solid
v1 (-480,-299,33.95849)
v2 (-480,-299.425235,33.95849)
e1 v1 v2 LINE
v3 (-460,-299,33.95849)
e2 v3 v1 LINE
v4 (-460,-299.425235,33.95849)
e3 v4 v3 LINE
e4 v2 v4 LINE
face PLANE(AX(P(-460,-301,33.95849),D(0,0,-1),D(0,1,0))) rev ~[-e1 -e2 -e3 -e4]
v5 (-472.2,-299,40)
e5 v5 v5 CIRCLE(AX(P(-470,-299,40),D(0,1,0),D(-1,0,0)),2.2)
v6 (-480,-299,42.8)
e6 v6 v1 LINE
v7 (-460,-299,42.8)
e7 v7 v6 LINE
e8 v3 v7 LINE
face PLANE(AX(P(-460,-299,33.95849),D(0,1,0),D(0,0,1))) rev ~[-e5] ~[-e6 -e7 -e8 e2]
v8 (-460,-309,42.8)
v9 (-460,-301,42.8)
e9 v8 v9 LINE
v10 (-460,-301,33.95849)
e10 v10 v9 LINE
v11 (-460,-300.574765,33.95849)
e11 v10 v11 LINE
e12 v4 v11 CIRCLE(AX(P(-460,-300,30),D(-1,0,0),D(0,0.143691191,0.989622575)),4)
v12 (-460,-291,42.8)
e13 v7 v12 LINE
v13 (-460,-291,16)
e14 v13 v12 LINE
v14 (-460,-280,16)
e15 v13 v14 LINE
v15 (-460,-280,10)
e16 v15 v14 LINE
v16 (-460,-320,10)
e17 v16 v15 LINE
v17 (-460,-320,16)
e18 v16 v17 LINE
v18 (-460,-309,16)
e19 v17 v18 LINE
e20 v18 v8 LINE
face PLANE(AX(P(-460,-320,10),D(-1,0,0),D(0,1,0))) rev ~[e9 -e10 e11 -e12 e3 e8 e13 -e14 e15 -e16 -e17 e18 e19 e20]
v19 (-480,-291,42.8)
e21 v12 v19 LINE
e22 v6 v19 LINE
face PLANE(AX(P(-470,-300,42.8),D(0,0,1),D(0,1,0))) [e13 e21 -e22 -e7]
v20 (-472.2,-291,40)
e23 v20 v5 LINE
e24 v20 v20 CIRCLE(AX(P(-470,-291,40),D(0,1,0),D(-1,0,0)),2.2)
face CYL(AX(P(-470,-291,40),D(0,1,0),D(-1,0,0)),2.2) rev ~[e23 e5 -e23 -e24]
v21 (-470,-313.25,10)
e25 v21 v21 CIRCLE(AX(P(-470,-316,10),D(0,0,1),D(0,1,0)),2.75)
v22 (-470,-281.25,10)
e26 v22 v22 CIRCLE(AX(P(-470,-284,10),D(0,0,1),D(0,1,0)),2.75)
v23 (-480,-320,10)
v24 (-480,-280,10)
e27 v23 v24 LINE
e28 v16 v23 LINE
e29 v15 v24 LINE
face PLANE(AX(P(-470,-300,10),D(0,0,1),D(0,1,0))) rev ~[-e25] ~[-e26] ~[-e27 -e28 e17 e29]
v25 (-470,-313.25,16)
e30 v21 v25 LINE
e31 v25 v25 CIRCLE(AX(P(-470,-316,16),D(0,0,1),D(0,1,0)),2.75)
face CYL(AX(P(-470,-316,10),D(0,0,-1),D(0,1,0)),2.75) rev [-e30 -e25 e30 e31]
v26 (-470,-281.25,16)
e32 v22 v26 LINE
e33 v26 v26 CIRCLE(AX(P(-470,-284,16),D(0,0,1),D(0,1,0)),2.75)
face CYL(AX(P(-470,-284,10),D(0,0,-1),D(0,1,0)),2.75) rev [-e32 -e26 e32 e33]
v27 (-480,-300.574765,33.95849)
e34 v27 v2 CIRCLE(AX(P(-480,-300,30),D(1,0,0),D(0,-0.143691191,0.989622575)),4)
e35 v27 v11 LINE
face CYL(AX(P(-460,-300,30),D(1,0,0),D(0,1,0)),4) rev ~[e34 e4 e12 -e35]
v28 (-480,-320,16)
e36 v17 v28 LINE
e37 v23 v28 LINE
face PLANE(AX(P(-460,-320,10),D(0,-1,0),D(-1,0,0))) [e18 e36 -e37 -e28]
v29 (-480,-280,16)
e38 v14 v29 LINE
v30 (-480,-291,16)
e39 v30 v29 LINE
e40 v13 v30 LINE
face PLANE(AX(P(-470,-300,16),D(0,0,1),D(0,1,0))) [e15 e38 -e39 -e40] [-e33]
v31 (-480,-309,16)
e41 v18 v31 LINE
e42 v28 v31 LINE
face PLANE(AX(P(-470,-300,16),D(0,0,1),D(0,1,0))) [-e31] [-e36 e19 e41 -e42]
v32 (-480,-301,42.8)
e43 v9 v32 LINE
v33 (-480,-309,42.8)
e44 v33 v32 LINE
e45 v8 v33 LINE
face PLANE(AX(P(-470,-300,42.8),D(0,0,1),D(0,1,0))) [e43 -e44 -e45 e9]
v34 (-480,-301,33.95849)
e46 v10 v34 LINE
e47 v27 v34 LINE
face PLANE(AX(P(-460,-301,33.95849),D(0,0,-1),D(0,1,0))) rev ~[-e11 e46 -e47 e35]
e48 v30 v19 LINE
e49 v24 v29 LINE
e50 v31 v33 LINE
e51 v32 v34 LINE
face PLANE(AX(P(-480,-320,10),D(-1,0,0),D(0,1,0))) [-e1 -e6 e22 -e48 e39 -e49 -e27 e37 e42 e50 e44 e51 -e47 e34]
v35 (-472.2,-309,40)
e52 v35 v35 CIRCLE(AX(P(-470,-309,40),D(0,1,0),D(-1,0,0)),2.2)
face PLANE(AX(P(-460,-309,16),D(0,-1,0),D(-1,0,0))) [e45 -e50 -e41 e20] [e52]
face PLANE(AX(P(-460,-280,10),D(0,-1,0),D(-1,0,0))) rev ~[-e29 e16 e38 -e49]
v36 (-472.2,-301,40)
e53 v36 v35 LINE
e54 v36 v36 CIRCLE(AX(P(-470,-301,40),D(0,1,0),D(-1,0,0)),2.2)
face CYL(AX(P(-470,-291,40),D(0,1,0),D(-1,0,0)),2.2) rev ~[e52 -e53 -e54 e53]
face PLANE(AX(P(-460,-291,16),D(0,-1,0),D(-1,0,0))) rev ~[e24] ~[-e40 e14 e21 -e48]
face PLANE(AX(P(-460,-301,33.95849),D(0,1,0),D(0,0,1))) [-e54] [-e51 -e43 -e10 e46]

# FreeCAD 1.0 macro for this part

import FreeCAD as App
import Part
import Sketcher
from FreeCAD import Vector


def add_polygon(sketch, points):
    """Adds a closed chain of lines whose ends are joined by coincident constraints."""
    first, n = sketch.GeometryCount, len(points)
    for a, b in zip(points, points[1:] + points[:1]):
        sketch.addGeometry(Part.LineSegment(App.Vector(*a, 0), App.Vector(*b, 0)), False)
    for i in range(n):
        sketch.addConstraint(Sketcher.Constraint("Coincident", first + i, 2, first + (i + 1) % n, 1))

doc = App.newDocument("Part")
body = doc.addObject("PartDesign::Body", "Body")

sketch1 = body.newObject("Sketcher::SketchObject", "Sketch")
sketch1.AttachmentSupport = (doc.getObject("XY_Plane"), [""])
sketch1.MapMode = "FlatFace"
add_polygon(sketch1, [(-20, 10), (-20, -10), (20, -10), (20, 10)])
sketch1.addGeometry(Part.Circle(Vector(-16, 0, 0), Vector(0, 0, 1), 2.8), False)
sketch1.addGeometry(Part.Circle(Vector(16, 0, 0), Vector(0, 0, 1), 2.8), False)
sketch1.addConstraint([
    Sketcher.Constraint("Vertical", 0),
    Sketcher.Constraint("Horizontal", 1),
    Sketcher.Constraint("Vertical", 2),
    Sketcher.Constraint("Horizontal", 3),
    Sketcher.Constraint("Equal", 4, 5),
    Sketcher.Constraint("Symmetric", 4, 3, 5, 3, -1, 1),
    Sketcher.Constraint("Symmetric", 0, 2, 2, 2, -1, 1),
    Sketcher.Constraint("PointOnObject", 4, 3, -1),
    Sketcher.Constraint("Diameter", 4, 5.5),
    Sketcher.Constraint("DistanceX", 1, 1, 1, 2, 40.0),
    Sketcher.Constraint("DistanceY", 0, 2, 0, 1, 20.0),
    Sketcher.Constraint("DistanceX", 4, 3, -1, 1, 16.0),
])
pad1 = body.newObject("PartDesign::Pad", "Pad")
pad1.Profile = sketch1
pad1.Length = 6

sketch2 = body.newObject("Sketcher::SketchObject", "Sketch001")
sketch2.AttachmentSupport = (doc.getObject("XY_Plane"), [""])
sketch2.MapMode = "FlatFace"
sketch2.AttachmentOffset = App.Placement(Vector(0, 0, 6), App.Rotation())
add_polygon(sketch2, [(-9, 10), (-9, -10), (9, -10), (9, 10)])
sketch2.addConstraint([
    Sketcher.Constraint("Vertical", 0),
    Sketcher.Constraint("Horizontal", 1),
    Sketcher.Constraint("Vertical", 2),
    Sketcher.Constraint("Horizontal", 3),
    Sketcher.Constraint("Symmetric", 0, 2, 2, 2, -1, 1),
    Sketcher.Constraint("DistanceX", 1, 1, 1, 2, 18.0),
    Sketcher.Constraint("DistanceY", 0, 2, 0, 1, 20.0),
])
pad2 = body.newObject("PartDesign::Pad", "Pad001")
pad2.Profile = sketch2
pad2.Length = 26.8

sketch3 = body.newObject("Sketcher::SketchObject", "Sketch002")
sketch3.AttachmentSupport = (doc.getObject("XZ_Plane"), [""])
sketch3.MapMode = "FlatFace"
sketch3.AttachmentOffset = App.Placement(Vector(0, 0, 10), App.Rotation())
sketch3.addGeometry(Part.Circle(Vector(0, 20, 0), Vector(0, 0, 1), 4), False)
sketch3.addConstraint([
    Sketcher.Constraint("PointOnObject", 0, 3, -2),
    Sketcher.Constraint("Diameter", 0, 8.0),
    Sketcher.Constraint("DistanceY", -1, 1, 0, 3, 20.0),
])
pocket1 = body.newObject("PartDesign::Pocket", "Pocket")
pocket1.Profile = sketch3
pocket1.Type = "ThroughAll"

sketch4 = body.newObject("Sketcher::SketchObject", "Sketch003")
sketch4.AttachmentSupport = (doc.getObject("XZ_Plane"), [""])
sketch4.MapMode = "FlatFace"
sketch4.AttachmentOffset = App.Placement(Vector(0, 0, 10), App.Rotation())
add_polygon(sketch4, [(-1, 32.8), (-1, 24), (1, 24), (1, 32.8)])
sketch4.addConstraint([
    Sketcher.Constraint("Vertical", 0),
    Sketcher.Constraint("Horizontal", 1),
    Sketcher.Constraint("Vertical", 2),
    Sketcher.Constraint("Horizontal", 3),
    Sketcher.Constraint("DistanceX", 1, 1, 1, 2, 2.0),
    Sketcher.Constraint("DistanceX", 0, 2, -1, 1, 1.0),
    Sketcher.Constraint("DistanceY", -1, 1, 2, 2, 32.8),
    Sketcher.Constraint("DistanceY", 0, 2, 0, 1, 8.84151),
])
pocket2 = body.newObject("PartDesign::Pocket", "Pocket001")
pocket2.Profile = sketch4
pocket2.Type = "ThroughAll"

sketch5 = body.newObject("Sketcher::SketchObject", "Sketch004")
sketch5.AttachmentSupport = (doc.getObject("YZ_Plane"), [""])
sketch5.MapMode = "FlatFace"
sketch5.AttachmentOffset = App.Placement(Vector(0, 0, 9), App.Rotation())
sketch5.addGeometry(Part.Circle(Vector(0, 30, 0), Vector(0, 0, 1), 2.2), False)
sketch5.addConstraint([
    Sketcher.Constraint("PointOnObject", 0, 3, -2),
    Sketcher.Constraint("Diameter", 0, 4.4),
    Sketcher.Constraint("DistanceY", -1, 1, 0, 3, 30.0),
])
pocket3 = body.newObject("PartDesign::Pocket", "Pocket002")
pocket3.Profile = sketch5
pocket3.Type = "ThroughAll"
body2 = doc.addObject("PartDesign::Body", "Body001")
doc.recompute()

body.Placement = App.Placement(Vector(10, -100, 10), App.Rotation(Vector(0, 0, 1), 90))
boolean = body2.newObject("PartDesign::Boolean", "Boolean")
boolean.Type = "Fuse"
boolean.addObjects([body])
body3 = doc.addObject("PartDesign::Body", "Body002")
doc.recompute()

body2.Placement = App.Placement(Vector(0, -200, 0), App.Rotation(Vector(0, 0, 1), 0))
boolean2 = body3.newObject("PartDesign::Boolean", "Boolean001")
boolean2.Type = "Fuse"
boolean2.addObjects([body2])
body4 = doc.addObject("PartDesign::Body", "Body003")
doc.recompute()

body3.Placement = App.Placement(Vector(-480, 0, 0), App.Rotation(Vector(0, 0, 1), 0))
boolean3 = body4.newObject("PartDesign::Boolean", "Boolean002")
boolean3.Type = "Fuse"
boolean3.addObjects([body3])

doc.recompute()
